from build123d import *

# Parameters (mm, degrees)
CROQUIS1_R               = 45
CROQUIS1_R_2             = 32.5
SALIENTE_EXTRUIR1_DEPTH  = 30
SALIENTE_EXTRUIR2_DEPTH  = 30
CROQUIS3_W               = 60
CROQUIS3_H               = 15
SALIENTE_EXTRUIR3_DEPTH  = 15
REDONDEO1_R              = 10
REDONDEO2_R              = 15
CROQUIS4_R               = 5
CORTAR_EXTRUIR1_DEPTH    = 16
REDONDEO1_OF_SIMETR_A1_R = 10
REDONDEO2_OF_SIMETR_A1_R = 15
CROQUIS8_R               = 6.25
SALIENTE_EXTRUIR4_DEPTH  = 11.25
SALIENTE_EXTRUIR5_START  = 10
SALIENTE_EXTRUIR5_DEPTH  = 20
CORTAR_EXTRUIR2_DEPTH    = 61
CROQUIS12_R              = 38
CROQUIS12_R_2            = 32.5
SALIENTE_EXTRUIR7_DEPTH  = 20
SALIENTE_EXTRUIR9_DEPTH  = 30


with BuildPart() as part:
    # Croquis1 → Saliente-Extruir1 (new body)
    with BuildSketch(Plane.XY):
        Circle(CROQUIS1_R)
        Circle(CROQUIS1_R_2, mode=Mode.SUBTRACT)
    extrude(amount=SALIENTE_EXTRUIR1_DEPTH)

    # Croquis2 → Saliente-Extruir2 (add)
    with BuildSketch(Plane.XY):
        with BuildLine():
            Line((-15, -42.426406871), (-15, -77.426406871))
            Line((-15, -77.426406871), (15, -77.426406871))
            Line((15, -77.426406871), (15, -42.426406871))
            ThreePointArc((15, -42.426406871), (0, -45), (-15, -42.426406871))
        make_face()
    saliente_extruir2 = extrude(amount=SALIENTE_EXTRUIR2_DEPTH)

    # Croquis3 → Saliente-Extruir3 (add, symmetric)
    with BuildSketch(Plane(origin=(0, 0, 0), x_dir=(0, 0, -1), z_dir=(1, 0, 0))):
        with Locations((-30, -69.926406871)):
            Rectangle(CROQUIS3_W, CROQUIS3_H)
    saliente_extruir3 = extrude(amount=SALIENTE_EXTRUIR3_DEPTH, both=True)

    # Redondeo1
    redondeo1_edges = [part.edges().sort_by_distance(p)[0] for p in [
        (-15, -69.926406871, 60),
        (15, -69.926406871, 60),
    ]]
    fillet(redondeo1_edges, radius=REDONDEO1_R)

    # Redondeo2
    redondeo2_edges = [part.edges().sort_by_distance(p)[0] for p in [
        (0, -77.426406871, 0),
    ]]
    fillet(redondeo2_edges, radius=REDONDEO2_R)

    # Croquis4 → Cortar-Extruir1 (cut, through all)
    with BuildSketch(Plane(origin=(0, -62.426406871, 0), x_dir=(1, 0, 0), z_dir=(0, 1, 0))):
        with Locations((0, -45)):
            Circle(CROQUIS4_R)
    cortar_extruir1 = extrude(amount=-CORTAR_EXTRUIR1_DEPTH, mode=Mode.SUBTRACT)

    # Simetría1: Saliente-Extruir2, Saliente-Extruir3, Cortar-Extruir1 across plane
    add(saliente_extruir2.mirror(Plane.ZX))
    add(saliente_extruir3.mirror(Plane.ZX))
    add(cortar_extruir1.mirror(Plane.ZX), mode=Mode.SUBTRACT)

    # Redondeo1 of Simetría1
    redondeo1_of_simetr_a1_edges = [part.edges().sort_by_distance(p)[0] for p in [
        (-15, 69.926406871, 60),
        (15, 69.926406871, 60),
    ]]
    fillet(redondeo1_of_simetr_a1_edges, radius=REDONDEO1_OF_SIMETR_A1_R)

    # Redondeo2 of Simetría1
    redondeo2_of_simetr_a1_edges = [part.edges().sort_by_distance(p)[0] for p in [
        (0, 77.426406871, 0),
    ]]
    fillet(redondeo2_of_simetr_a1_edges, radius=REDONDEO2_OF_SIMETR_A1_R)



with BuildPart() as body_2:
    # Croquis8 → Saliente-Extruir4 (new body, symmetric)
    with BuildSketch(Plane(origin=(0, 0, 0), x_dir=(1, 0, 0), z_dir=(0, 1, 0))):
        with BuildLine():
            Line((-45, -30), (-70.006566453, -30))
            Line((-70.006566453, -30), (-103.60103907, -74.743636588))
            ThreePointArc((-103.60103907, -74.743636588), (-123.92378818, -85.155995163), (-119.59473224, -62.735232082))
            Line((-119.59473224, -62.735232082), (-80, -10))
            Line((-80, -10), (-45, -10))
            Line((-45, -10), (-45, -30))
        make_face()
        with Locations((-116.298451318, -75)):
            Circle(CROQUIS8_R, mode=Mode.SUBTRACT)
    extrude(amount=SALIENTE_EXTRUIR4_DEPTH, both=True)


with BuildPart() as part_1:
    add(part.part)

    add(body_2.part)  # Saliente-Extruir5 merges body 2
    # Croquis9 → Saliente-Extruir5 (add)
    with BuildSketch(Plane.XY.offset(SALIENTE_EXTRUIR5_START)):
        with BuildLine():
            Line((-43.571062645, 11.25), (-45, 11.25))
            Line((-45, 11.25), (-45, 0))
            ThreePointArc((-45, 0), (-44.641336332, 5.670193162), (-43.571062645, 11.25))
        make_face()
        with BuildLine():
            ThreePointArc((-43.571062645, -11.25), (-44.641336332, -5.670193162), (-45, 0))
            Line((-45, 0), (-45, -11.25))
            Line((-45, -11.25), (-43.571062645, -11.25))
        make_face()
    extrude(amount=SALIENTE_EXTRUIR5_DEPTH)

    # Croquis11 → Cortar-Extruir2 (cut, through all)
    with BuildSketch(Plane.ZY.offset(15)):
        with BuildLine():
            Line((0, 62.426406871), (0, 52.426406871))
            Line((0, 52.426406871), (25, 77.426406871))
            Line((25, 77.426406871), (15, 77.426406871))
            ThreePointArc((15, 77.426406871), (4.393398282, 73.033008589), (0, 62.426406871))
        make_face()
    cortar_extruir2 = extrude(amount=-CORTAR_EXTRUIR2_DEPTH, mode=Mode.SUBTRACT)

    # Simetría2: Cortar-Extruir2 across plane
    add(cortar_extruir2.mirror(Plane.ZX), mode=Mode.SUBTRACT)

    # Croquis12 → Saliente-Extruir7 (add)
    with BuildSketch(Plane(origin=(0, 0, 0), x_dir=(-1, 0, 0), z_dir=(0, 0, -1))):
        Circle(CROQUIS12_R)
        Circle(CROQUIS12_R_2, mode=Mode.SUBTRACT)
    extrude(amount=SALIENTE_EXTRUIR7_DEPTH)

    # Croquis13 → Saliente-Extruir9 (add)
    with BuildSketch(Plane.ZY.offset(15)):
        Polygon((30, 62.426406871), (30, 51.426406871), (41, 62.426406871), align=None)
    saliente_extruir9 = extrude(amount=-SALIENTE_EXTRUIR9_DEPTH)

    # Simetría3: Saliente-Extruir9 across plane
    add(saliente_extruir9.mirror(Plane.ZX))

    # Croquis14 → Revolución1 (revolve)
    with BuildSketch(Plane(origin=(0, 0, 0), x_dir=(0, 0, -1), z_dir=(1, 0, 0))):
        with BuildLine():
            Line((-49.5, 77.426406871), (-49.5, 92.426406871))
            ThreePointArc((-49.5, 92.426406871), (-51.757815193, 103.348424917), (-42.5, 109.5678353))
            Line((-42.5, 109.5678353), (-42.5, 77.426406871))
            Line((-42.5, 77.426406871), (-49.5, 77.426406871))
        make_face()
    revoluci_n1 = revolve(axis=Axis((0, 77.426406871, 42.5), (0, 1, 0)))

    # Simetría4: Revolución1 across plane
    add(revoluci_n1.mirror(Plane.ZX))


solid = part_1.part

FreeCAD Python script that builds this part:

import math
import FreeCAD as App
import Part
import Sketcher

V = App.Vector
Q = App.Units.Quantity


def edges_at(feature, points):
    """Names of the edges that pass closest to the given points."""
    edges = feature.Shape.Edges
    near = lambda p: min(range(len(edges)), key=lambda i: edges[i].distToShape(Part.Vertex(*p))[0])
    return sorted({f"Edge{near(p) + 1}" for p in points})

doc = App.newDocument("Part")
body = doc.addObject("PartDesign::Body", "Body")

# Sketch on XY plane
sketch1 = body.newObject("Sketcher::SketchObject", "Sketch")
sketch1.AttachmentSupport = (doc.getObject("XY_Plane"), [""])
sketch1.MapMode = "FlatFace"
sketch1.addGeometry([
    Part.Circle(V(0, 0, 0), V(0, 0, 1), 45),
    Part.Circle(V(0, 0, 0), V(0, 0, 1), 32),
], False)
sketch1.addConstraint([
    Sketcher.Constraint("Coincident", 0, 3, -1, 1),
    Sketcher.Constraint("Coincident", 1, 3, -1, 1),
    Sketcher.Constraint("Diameter", 0, 90.0),
    Sketcher.Constraint("Diameter", 1, 65.0),
])
pad1 = body.newObject("PartDesign::Pad", "Pad")
pad1.Profile = sketch1
pad1.Length = 30

# Sketch on XY plane
sketch2 = body.newObject("Sketcher::SketchObject", "Sketch001")
sketch2.AttachmentSupport = (doc.getObject("XY_Plane"), [""])
sketch2.MapMode = "FlatFace"
sketch2.addGeometry([
    Part.LineSegment(V(-15, -42, 0), V(-15, -77, 0)),
    Part.LineSegment(V(-15, -77, 0), V(15, -77, 0)),
    Part.LineSegment(V(15, -77, 0), V(15, -42, 0)),
    Part.ArcOfCircle(Part.Circle(V(0, 0, 0), V(0, 0, 1), 45), math.radians(-109), math.radians(-71)),
], False)
sketch2.addConstraint([
    Sketcher.Constraint("Coincident", 0, 2, 1, 1),
    Sketcher.Constraint("Coincident", 1, 2, 2, 1),
    Sketcher.Constraint("Coincident", 2, 2, 3, 2),
    Sketcher.Constraint("Coincident", 3, 1, 0, 1),
    Sketcher.Constraint("Vertical", 0),
    Sketcher.Constraint("Horizontal", 1),
    Sketcher.Constraint("Vertical", 2),
    Sketcher.Constraint("Coincident", 3, 3, -1, 1),
    Sketcher.Constraint("Horizontal", 2, 2, 3, 1),
    Sketcher.Constraint("Radius", 3, 45.0),
    Sketcher.Constraint("DistanceX", 1, 1, 1, 2, 30.0),
    Sketcher.Constraint("DistanceY", 0, 2, 0, 1, 35.0),
])
pad2 = body.newObject("PartDesign::Pad", "Pad001")
pad2.Profile = sketch2
pad2.Length = 30

# Sketch on YZ plane
sketch3 = body.newObject("Sketcher::SketchObject", "Sketch002")
sketch3.AttachmentSupport = (doc.getObject("YZ_Plane"), [""])
sketch3.MapMode = "FlatFace"
sketch3.addGeometry([
    Part.LineSegment(V(-62, 60, 0), V(-77, 60, 0)),
    Part.LineSegment(V(-77, 60, 0), V(-77, 0, 0)),
    Part.LineSegment(V(-77, 0, 0), V(-62, 0, 0)),
    Part.LineSegment(V(-62, 0, 0), V(-62, 60, 0)),
], False)
sketch3.addConstraint([
    Sketcher.Constraint("Coincident", 0, 2, 1, 1),
    Sketcher.Constraint("Coincident", 1, 2, 2, 1),
    Sketcher.Constraint("Coincident", 2, 2, 3, 1),
    Sketcher.Constraint("Coincident", 3, 2, 0, 1),
    Sketcher.Constraint("Horizontal", 0),
    Sketcher.Constraint("Vertical", 1),
    Sketcher.Constraint("Horizontal", 2),
    Sketcher.Constraint("Vertical", 3),
    Sketcher.Constraint("PointOnObject", 1, 2, -1),
    Sketcher.Constraint("DistanceX", 0, 2, 0, 1, 15.0),
    Sketcher.Constraint("DistanceY", 1, 2, 1, 1, 60.0),
    Sketcher.Constraint("DistanceX", 0, 2, -1, 1, 77.426407),
])
pad3 = body.newObject("PartDesign::Pad", "Pad002")
pad3.Profile = sketch3
pad3.Length = 30
pad3.Midplane = True
doc.recompute()

fillet = body.newObject("PartDesign::Fillet", "Fillet")
fillet.Base = (pad3, edges_at(pad3, [(-15, -69.926, 60), (15, -69.926, 60)]))
fillet.Radius = 10
doc.recompute()

fillet2 = body.newObject("PartDesign::Fillet", "Fillet001")
fillet2.Base = (fillet, edges_at(fillet, [(0, -77.426, 0)]))
fillet2.Radius = 15

# Sketch on XZ plane
sketch4 = body.newObject("Sketcher::SketchObject", "Sketch003")
sketch4.AttachmentSupport = (doc.getObject("XZ_Plane"), [""])
sketch4.MapMode = "FlatFace"
sketch4.AttachmentOffset = App.Placement(V(0, 0, 62.426407), App.Rotation())
sketch4.addGeometry(Part.Circle(V(0, 45, 0), V(0, 0, 1), 5), False)
sketch4.addConstraint([
    Sketcher.Constraint("PointOnObject", 0, 3, -2),
    Sketcher.Constraint("Diameter", 0, 10.0),
    Sketcher.Constraint("DistanceY", -1, 1, 0, 3, 45.0),
])
pocket1 = body.newObject("PartDesign::Pocket", "Pocket")
pocket1.Profile = sketch4
pocket1.Type = "ThroughAll"
pocket1.Reversed = True
doc.recompute()

mirrored = body.newObject("PartDesign::Mirrored", "Mirrored")
mirrored.Originals = [pad2, pad3, pocket1]
mirrored.MirrorPlane = (doc.getObject("XZ_Plane"), [""])
body.Tip = mirrored
doc.recompute()

fillet3 = body.newObject("PartDesign::Fillet", "Fillet002")
fillet3.Base = (mirrored, edges_at(mirrored, [(-15, 69.926, 60), (15, 69.926, 60)]))
fillet3.Radius = 10
doc.recompute()

fillet4 = body.newObject("PartDesign::Fillet", "Fillet003")
fillet4.Base = (fillet3, edges_at(fillet3, [(0, 77.426, 0)]))
fillet4.Radius = 15
body2 = doc.addObject("PartDesign::Body", "Body001")

# Sketch on XZ plane
sketch5 = body2.newObject("Sketcher::SketchObject", "Sketch004")
sketch5.AttachmentSupport = (doc.getObject("XZ_Plane001"), [""])
sketch5.MapMode = "FlatFace"
sketch5.addGeometry([
    Part.LineSegment(V(-70, 30, 0), V(-45, 30, 0)),  # 0
    Part.LineSegment(V(-45, 30, 0), V(-45, 10, 0)),  # 1
    Part.LineSegment(V(-45, 10, 0), V(-80, 10, 0)),  # 2
    Part.LineSegment(V(-80, 10, 0), V(-120, 63, 0)),  # 3
    Part.ArcOfCircle(Part.Circle(V(-116, 75, 0), V(0, 0, 1), 13), math.radians(-1), math.radians(255)),  # 4
    Part.LineSegment(V(-104, 75, 0), V(-70, 30, 0)),  # 5
    Part.Circle(V(-116, 75, 0), V(0, 0, 1), 6),  # 6
], False)
sketch5.addConstraint([
    Sketcher.Constraint("Coincident", 0, 2, 1, 1),
    Sketcher.Constraint("Coincident", 1, 2, 2, 1),
    Sketcher.Constraint("Coincident", 2, 2, 3, 1),
    Sketcher.Constraint("Coincident", 3, 2, 4, 2),
    Sketcher.Constraint("Coincident", 4, 1, 5, 1),
    Sketcher.Constraint("Coincident", 5, 2, 0, 1),
    Sketcher.Constraint("Horizontal", 0),
    Sketcher.Constraint("Vertical", 1),
    Sketcher.Constraint("Horizontal", 2),
    Sketcher.Constraint("Coincident", 6, 3, 4, 3),
    Sketcher.Constraint("Parallel", 3, 5),
    Sketcher.Constraint("Diameter", 6, 12.5),
    Sketcher.Constraint("Radius", 4, 12.7),
    Sketcher.Constraint("DistanceX", 2, 2, 2, 1, 35.0),
    Sketcher.Constraint("DistanceY", 1, 2, 1, 1, 20.0),
    Sketcher.Constraint("DistanceY", -1, 1, 4, 3, 75.0),
    Sketcher.Constraint("DistanceX", 0, 2, -1, 1, 45.0),
    Sketcher.Constraint("DistanceY", -1, 1, 0, 2, 30.0),
    Sketcher.Constraint("Angle", 3, Q("126.9 deg")),
    Sketcher.Constraint("Distance", 5, 55.951601),
    Sketcher.Constraint("DistanceX", 0, 1, 0, 2, 25.006566),
])
pad4 = body2.newObject("PartDesign::Pad", "Pad003")
pad4.Profile = sketch5
pad4.Length = 22.5
pad4.Midplane = True
body.AllowCompound = True
doc.recompute()

boolean = body.newObject("PartDesign::Boolean", "Boolean")
boolean.Type = "Fuse"
boolean.addObjects([body2])

# Sketch on XY plane
sketch6 = body.newObject("Sketcher::SketchObject", "Sketch005")
sketch6.AttachmentSupport = (doc.getObject("XY_Plane"), [""])
sketch6.MapMode = "FlatFace"
sketch6.AttachmentOffset = App.Placement(V(0, 0, 10), App.Rotation())
sketch6.addGeometry([
    Part.LineSegment(V(-43.6, 11.2, 0), V(-45, 11.2, 0)),  # 0
    Part.LineSegment(V(-45, 11.2, 0), V(-45, 0, 0)),  # 1
    Part.ArcOfCircle(Part.Circle(V(0, 0, 0), V(0, 0, 1), 45), math.radians(165.52), math.radians(180)),  # 2
    Part.ArcOfCircle(Part.Circle(V(0, 0, 0), V(0, 0, 1), 45), math.radians(180), math.radians(194.48)),  # 3
    Part.LineSegment(V(-45, 0, 0), V(-45, -11.2, 0)),  # 4
    Part.LineSegment(V(-45, -11.2, 0), V(-43.6, -11.2, 0)),  # 5
], False)
sketch6.addConstraint([
    Sketcher.Constraint("Coincident", 0, 2, 1, 1),
    Sketcher.Constraint("Tangent", 1, 2, 2, 2),
    Sketcher.Constraint("Coincident", 2, 1, 0, 1),
    Sketcher.Constraint("Tangent", 3, 1, 4, 1),
    Sketcher.Constraint("Coincident", 4, 2, 5, 1),
    Sketcher.Constraint("Coincident", 5, 2, 3, 2),
    Sketcher.Constraint("Horizontal", 0),
    Sketcher.Constraint("Vertical", 1),
    Sketcher.Constraint("Vertical", 4),
    Sketcher.Constraint("Horizontal", 5),
    Sketcher.Constraint("Coincident", 2, 3, -1, 1),
    Sketcher.Constraint("Coincident", 3, 3, -1, 1),
    Sketcher.Constraint("Equal", 2, 3),
    Sketcher.Constraint("Vertical", 2, 1, 5, 2),
    Sketcher.Constraint("Radius", 2, 45.0),
    Sketcher.Constraint("DistanceY", 1, 2, 1, 1, 11.25),
])
pad5 = body.newObject("PartDesign::Pad", "Pad004")
pad5.Profile = sketch6
pad5.Length = 20

# Sketch on YZ plane
sketch7 = body.newObject("Sketcher::SketchObject", "Sketch006")
sketch7.AttachmentSupport = (doc.getObject("YZ_Plane"), [""])
sketch7.MapMode = "FlatFace"
sketch7.AttachmentOffset = App.Placement(V(0, 0, -15), App.Rotation())
sketch7.addGeometry([
    Part.LineSegment(V(62, 0, 0), V(52, 0, 0)),
    Part.LineSegment(V(52, 0, 0), V(77, 25, 0)),
    Part.LineSegment(V(77, 25, 0), V(77, 15, 0)),
    Part.ArcOfCircle(Part.Circle(V(62, 15, 0), V(0, 0, 1), 15), math.radians(-90), math.radians(0)),
], False)
sketch7.addConstraint([
    Sketcher.Constraint("Coincident", 0, 2, 1, 1),
    Sketcher.Constraint("Coincident", 1, 2, 2, 1),
    Sketcher.Constraint("Tangent", 2, 2, 3, 2),
    Sketcher.Constraint("Tangent", 3, 1, 0, 1),
    Sketcher.Constraint("Horizontal", 0),
    Sketcher.Constraint("Vertical", 2),
    Sketcher.Constraint("PointOnObject", 0, 2, -1),
    Sketcher.Constraint("Equal", 0, 2),
    Sketcher.Constraint("Radius", 3, 15.0),
    Sketcher.Constraint("DistanceX", 0, 2, 0, 1, 10.0),
    Sketcher.Constraint("DistanceX", -1, 1, 3, 3, 62.426407),
])
pocket2 = body.newObject("PartDesign::Pocket", "Pocket001")
pocket2.Profile = sketch7
pocket2.Type = "ThroughAll"
pocket2.Reversed = True
doc.recompute()

mirrored2 = body.newObject("PartDesign::Mirrored", "Mirrored001")
mirrored2.Originals = [pocket2]
mirrored2.MirrorPlane = (doc.getObject("XZ_Plane"), [""])
body.Tip = mirrored2

# Sketch on XY plane
sketch8 = body.newObject("Sketcher::SketchObject", "Sketch007")
sketch8.AttachmentSupport = (doc.getObject("XY_Plane"), [""])
sketch8.MapMode = "FlatFace"
sketch8.addGeometry([
    Part.Circle(V(0, 0, 0), V(0, 0, 1), 38),
    Part.Circle(V(0, 0, 0), V(0, 0, 1), 32),
], False)
sketch8.addConstraint([
    Sketcher.Constraint("Coincident", 0, 3, -1, 1),
    Sketcher.Constraint("Coincident", 1, 3, -1, 1),
    Sketcher.Constraint("Diameter", 0, 76.0),
    Sketcher.Constraint("Diameter", 1, 65.0),
])
pad6 = body.newObject("PartDesign::Pad", "Pad005")
pad6.Profile = sketch8
pad6.Length = 20
pad6.Reversed = True

# Sketch on YZ plane
sketch9 = body.newObject("Sketcher::SketchObject", "Sketch008")
sketch9.AttachmentSupport = (doc.getObject("YZ_Plane"), [""])
sketch9.MapMode = "FlatFace"
sketch9.AttachmentOffset = App.Placement(V(0, 0, -15), App.Rotation())
sketch9.addGeometry([
    Part.LineSegment(V(62, 30, 0), V(51, 30, 0)),
    Part.LineSegment(V(51, 30, 0), V(62, 41, 0)),
    Part.LineSegment(V(62, 41, 0), V(62, 30, 0)),
], False)
sketch9.addConstraint([
    Sketcher.Constraint("Coincident", 0, 2, 1, 1),
    Sketcher.Constraint("Coincident", 1, 2, 2, 1),
    Sketcher.Constraint("Coincident", 2, 2, 0, 1),
    Sketcher.Constraint("Horizontal", 0),
    Sketcher.Constraint("Vertical", 2),
    Sketcher.Constraint("Equal", 0, 2),
    Sketcher.Constraint("DistanceX", 0, 2, 0, 1, 11.0),
    Sketcher.Constraint("DistanceY", -1, 1, 0, 2, 30.0),
    Sketcher.Constraint("DistanceX", -1, 1, 0, 2, 51.426407),
])
pad7 = body.newObject("PartDesign::Pad", "Pad006")
pad7.Profile = sketch9
pad7.Length = 30
doc.recompute()

mirrored3 = body.newObject("PartDesign::Mirrored", "Mirrored002")
mirrored3.Originals = [pad7]
mirrored3.MirrorPlane = (doc.getObject("XZ_Plane"), [""])
body.Tip = mirrored3

# Sketch on YZ plane
sketch10 = body.newObject("Sketcher::SketchObject", "Sketch009")
sketch10.AttachmentSupport = (doc.getObject("YZ_Plane"), [""])
sketch10.MapMode = "FlatFace"
sketch10.addGeometry([
    Part.LineSegment(V(92, 50, 0), V(77, 50, 0)),
    Part.LineSegment(V(77, 50, 0), V(77, 42, 0)),
    Part.LineSegment(V(77, 42, 0), V(110, 42, 0)),
    Part.ArcOfCircle(Part.Circle(V(100, 42, 0), V(0, 0, 1), 10), math.radians(0), math.radians(136)),
], False)
sketch10.addGeometry(Part.LineSegment(V(77, 42, 0), V(110, 42, 0)), True)  # axis
sketch10.addConstraint([
    Sketcher.Constraint("Coincident", 0, 2, 1, 1),
    Sketcher.Constraint("Coincident", 1, 2, 2, 1),
    Sketcher.Constraint("Coincident", 2, 2, 3, 1),
    Sketcher.Constraint("Coincident", 3, 2, 0, 1),
    Sketcher.Constraint("Horizontal", 0),
    Sketcher.Constraint("Vertical", 1),
    Sketcher.Constraint("Horizontal", 2),
    Sketcher.Constraint("Horizontal", 4),
    Sketcher.Constraint("Coincident", 4, 1, 1, 2),
    Sketcher.Constraint("Horizontal", 3, 3, 1, 2),
    Sketcher.Constraint("Equal", 2, 4),
    Sketcher.Constraint("Radius", 3, 10.0),
    Sketcher.Constraint("DistanceX", 0, 2, 0, 1, 15.0),
    Sketcher.Constraint("DistanceY", 1, 2, 1, 1, 7.0),
    Sketcher.Constraint("DistanceY", -1, 1, 3, 3, 42.5),
    Sketcher.Constraint("DistanceX", -1, 1, 3, 3, 99.567835),
])
revolution = body.newObject("PartDesign::Revolution", "Revolution")
revolution.Profile = sketch10
revolution.ReferenceAxis = (sketch10, ["Axis0"])
revolution.Angle = 360
doc.recompute()

mirrored4 = body.newObject("PartDesign::Mirrored", "Mirrored003")
mirrored4.Originals = [revolution]
mirrored4.MirrorPlane = (doc.getObject("XZ_Plane"), [""])
body.Tip = mirrored4

doc.recompute()
